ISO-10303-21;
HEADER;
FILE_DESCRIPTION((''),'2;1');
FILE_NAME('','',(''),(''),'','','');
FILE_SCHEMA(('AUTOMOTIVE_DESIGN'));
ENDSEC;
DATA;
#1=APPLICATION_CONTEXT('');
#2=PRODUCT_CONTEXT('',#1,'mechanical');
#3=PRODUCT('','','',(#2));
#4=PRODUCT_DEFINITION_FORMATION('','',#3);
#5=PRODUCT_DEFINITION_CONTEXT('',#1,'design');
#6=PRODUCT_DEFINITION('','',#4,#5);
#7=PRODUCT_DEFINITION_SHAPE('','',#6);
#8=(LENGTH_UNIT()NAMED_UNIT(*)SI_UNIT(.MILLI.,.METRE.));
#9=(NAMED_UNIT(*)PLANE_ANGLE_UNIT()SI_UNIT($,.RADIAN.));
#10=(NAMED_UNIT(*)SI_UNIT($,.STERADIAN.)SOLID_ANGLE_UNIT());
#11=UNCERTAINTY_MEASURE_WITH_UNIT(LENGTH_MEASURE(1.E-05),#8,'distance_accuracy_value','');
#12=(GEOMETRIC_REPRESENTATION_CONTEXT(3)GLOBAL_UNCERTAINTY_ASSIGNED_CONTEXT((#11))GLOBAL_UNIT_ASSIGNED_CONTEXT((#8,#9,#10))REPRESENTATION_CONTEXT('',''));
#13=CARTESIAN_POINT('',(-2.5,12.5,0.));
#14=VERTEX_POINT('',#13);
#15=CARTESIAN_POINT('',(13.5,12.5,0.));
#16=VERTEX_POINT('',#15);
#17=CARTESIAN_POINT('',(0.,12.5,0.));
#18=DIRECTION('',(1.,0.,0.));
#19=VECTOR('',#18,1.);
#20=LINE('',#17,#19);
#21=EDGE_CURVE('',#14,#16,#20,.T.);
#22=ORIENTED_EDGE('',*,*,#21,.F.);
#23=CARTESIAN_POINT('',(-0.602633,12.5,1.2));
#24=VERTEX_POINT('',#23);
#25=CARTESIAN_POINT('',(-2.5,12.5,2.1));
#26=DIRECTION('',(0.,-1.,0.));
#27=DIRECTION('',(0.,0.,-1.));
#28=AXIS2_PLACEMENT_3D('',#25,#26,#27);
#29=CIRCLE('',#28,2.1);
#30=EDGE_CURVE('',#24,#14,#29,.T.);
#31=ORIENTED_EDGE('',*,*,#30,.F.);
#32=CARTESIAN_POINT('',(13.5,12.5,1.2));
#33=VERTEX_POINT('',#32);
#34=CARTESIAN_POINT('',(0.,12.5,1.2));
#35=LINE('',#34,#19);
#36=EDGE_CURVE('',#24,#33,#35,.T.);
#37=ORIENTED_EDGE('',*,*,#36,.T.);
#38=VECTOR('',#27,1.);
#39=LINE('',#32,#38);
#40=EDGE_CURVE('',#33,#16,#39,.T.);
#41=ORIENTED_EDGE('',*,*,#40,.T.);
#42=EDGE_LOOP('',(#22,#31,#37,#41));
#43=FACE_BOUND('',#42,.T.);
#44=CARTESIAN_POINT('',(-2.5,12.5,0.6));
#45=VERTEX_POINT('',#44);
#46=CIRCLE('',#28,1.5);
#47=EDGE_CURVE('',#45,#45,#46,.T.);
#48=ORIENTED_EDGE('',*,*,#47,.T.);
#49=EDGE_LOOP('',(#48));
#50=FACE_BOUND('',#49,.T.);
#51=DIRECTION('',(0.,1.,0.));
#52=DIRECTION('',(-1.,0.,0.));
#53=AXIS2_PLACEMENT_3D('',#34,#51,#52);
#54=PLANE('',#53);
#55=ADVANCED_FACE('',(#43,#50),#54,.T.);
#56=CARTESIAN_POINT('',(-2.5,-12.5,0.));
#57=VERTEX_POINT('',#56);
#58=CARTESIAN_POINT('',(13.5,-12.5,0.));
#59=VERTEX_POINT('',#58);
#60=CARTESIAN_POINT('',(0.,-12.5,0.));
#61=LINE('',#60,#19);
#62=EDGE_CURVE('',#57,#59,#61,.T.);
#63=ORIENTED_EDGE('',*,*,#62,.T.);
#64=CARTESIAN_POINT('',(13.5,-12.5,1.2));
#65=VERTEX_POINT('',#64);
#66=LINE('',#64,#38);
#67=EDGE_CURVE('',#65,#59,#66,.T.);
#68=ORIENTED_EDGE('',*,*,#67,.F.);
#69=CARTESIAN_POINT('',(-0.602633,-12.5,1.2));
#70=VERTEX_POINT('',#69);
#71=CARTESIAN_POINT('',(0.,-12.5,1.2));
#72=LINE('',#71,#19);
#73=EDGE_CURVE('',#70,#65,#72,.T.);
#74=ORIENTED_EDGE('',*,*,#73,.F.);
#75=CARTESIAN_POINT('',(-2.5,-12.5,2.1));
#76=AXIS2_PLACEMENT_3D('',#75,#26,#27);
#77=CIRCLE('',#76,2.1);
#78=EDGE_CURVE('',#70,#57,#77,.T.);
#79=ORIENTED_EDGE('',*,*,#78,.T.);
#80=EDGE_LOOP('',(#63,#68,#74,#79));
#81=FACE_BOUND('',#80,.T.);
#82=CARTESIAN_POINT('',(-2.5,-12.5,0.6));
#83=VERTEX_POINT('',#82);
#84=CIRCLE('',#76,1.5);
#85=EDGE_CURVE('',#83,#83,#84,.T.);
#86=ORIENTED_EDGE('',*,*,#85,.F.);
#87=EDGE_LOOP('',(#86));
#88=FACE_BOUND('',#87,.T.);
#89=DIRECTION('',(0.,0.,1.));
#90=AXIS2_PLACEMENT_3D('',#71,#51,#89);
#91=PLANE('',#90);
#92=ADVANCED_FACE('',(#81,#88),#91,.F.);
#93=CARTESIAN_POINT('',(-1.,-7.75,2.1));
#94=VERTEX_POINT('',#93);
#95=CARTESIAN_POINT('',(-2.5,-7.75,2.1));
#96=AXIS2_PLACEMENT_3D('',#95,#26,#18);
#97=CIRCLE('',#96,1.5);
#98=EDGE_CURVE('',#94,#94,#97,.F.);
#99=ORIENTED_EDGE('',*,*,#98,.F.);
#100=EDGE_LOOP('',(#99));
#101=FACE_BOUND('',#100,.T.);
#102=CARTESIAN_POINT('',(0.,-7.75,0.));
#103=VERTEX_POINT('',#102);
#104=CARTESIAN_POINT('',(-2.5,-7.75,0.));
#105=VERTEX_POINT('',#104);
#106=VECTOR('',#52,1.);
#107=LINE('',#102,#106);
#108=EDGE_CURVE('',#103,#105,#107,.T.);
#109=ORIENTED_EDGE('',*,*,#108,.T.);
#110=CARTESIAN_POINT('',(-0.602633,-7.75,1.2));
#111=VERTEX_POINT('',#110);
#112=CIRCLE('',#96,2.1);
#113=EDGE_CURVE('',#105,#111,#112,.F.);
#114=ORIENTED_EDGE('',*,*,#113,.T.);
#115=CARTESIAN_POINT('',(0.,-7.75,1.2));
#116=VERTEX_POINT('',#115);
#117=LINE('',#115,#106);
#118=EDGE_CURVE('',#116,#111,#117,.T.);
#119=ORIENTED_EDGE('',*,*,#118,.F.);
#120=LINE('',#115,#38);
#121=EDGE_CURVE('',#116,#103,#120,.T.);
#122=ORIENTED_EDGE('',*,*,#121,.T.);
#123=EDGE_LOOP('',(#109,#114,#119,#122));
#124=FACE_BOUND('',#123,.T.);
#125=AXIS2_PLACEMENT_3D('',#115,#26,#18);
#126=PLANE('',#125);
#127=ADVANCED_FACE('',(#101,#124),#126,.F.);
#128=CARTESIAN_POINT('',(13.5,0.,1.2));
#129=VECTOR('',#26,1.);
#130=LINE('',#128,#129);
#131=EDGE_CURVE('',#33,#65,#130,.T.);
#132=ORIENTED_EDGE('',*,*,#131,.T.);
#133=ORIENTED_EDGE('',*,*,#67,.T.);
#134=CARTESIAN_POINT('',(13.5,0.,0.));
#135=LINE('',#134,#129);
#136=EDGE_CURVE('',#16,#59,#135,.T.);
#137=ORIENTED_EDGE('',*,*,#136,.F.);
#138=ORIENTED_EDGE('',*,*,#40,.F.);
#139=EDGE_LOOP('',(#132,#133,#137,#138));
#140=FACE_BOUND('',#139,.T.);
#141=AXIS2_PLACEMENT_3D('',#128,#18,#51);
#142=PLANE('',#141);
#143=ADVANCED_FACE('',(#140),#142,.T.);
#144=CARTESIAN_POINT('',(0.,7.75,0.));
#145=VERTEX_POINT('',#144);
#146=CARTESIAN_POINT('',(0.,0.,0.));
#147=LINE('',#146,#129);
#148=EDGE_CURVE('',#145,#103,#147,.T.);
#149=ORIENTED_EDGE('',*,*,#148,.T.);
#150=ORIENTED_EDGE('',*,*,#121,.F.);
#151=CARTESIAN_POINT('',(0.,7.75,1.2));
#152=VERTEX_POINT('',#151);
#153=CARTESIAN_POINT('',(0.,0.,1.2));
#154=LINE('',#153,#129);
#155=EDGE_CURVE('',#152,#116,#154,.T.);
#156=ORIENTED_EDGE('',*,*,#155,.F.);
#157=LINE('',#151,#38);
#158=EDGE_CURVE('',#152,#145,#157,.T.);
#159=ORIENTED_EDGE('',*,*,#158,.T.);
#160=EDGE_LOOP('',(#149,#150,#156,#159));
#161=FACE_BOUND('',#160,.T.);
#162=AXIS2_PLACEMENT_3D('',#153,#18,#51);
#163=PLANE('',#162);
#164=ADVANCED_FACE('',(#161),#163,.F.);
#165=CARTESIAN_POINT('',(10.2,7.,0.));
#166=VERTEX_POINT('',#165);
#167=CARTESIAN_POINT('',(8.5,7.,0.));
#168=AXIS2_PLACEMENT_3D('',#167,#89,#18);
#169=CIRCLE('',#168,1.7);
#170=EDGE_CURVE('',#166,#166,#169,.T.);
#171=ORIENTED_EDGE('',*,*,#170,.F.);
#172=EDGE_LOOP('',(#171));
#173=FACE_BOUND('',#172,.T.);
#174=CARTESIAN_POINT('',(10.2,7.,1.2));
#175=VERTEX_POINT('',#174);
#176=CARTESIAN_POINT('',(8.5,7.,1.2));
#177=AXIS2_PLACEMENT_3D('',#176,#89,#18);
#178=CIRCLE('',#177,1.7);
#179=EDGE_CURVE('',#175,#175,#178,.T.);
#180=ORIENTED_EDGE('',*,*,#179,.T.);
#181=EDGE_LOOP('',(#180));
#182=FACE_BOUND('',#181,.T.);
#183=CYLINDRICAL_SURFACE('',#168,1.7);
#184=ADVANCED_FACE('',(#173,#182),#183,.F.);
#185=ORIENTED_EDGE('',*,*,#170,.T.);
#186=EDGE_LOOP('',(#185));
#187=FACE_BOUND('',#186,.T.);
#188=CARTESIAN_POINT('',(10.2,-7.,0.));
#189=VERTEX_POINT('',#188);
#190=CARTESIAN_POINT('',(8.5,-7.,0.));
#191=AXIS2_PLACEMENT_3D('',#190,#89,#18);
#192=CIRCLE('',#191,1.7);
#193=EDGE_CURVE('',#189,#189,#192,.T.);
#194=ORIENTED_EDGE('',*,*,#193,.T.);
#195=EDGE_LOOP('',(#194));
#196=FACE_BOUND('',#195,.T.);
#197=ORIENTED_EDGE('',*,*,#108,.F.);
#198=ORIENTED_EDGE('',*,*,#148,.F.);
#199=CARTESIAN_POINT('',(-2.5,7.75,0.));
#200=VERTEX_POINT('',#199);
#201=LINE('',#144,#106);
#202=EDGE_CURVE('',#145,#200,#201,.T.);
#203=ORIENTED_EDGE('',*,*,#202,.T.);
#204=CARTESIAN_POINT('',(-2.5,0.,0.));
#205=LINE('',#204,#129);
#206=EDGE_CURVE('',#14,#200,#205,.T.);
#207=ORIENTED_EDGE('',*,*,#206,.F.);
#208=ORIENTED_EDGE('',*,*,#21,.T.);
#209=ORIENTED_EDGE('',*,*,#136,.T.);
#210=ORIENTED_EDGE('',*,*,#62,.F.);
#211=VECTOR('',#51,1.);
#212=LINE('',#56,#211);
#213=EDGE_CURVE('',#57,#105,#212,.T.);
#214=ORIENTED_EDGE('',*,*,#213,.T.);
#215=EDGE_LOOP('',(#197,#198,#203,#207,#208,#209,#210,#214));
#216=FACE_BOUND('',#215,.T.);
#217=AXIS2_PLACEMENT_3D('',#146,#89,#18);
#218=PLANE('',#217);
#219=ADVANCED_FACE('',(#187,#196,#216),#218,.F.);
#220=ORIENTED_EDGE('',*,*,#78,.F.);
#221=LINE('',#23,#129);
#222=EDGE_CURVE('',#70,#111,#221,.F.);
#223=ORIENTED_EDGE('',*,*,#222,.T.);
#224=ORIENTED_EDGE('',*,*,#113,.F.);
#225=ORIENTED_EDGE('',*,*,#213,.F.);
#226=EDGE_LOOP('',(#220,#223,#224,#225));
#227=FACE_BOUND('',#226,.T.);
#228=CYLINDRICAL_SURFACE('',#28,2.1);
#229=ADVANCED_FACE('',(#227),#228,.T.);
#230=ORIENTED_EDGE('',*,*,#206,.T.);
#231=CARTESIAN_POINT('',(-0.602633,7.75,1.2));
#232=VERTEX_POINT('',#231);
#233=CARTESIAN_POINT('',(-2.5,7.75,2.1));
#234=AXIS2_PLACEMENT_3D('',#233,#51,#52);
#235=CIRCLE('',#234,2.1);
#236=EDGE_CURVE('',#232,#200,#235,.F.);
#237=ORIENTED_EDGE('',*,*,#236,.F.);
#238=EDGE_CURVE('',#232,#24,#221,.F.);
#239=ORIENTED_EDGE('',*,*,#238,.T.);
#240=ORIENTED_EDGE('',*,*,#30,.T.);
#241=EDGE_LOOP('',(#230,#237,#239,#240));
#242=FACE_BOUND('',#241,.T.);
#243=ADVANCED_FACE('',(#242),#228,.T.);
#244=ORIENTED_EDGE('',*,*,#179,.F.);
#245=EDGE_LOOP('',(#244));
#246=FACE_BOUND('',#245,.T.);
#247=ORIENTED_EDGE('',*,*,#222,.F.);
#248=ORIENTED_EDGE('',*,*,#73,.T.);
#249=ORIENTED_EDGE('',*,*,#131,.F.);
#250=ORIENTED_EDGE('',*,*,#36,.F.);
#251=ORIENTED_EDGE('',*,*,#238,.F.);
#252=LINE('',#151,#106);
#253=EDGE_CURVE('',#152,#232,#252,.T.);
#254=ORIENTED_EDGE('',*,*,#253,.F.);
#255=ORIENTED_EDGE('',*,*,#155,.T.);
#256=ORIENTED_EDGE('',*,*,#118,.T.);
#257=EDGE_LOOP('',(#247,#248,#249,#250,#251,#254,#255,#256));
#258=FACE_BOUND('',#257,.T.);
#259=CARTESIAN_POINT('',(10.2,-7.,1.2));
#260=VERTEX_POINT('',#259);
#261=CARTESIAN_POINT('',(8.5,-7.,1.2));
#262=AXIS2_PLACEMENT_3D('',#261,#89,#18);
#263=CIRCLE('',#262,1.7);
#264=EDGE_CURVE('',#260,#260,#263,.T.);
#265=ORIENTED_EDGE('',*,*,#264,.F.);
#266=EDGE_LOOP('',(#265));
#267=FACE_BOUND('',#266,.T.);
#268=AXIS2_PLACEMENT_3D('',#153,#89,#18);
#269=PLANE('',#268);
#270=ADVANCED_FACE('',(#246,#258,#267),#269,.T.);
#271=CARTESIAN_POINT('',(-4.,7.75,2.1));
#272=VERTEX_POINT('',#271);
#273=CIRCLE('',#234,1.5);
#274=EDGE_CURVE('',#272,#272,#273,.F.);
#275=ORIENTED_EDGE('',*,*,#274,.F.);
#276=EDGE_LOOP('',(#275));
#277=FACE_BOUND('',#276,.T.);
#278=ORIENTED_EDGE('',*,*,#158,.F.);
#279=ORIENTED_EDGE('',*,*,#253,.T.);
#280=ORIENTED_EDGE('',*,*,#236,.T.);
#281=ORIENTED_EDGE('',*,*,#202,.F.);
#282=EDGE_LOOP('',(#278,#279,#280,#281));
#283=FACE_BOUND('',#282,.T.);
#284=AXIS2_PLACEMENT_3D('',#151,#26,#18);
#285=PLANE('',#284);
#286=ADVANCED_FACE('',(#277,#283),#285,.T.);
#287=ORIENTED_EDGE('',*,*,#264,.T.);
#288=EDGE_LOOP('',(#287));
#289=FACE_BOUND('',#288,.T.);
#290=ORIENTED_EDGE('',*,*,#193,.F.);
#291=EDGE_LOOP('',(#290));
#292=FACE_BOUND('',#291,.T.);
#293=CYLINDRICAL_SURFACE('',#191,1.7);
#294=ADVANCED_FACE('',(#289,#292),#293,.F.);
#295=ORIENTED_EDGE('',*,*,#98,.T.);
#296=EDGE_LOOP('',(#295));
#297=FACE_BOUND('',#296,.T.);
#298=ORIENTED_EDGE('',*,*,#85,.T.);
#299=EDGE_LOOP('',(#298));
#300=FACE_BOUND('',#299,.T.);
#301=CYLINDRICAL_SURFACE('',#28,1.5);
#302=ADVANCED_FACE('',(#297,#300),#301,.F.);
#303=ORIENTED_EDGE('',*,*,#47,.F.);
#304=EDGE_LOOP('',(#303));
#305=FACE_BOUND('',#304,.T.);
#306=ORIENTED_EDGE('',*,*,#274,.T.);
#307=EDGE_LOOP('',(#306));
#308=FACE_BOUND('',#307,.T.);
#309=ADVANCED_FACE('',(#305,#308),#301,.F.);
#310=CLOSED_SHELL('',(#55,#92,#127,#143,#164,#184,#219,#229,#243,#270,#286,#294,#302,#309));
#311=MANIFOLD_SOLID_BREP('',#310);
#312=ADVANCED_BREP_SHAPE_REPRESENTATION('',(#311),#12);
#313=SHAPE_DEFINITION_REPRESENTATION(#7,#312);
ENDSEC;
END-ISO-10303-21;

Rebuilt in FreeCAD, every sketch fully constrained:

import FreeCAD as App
import Part
import Sketcher

V = App.Vector
Q = App.Units.Quantity

doc = App.newDocument("Part")
params = doc.addObject("Spreadsheet::Sheet", "Params")
for row, (alias, value) in enumerate([
    ("sketch1_width", "16 mm"),
    ("sketch1_height", "25 mm"),
    ("sketch1_width2", "2.5 mm"),
    ("sketch1_height2", "15.5 mm"),
    ("pad1_length", "1.2 mm"),
    ("sketch2_diameter", "3.4 mm"),
    ("pocket1_length", "1.2 mm"),
    ("sketch3_diameter", "4.2 mm"),
    ("pad2_length", "25 mm"),
    ("sketch4_diameter", "3 mm"),
    ("pocket2_length", "25 mm"),
    ("sketch5_width", "5 mm"),
    ("sketch5_height", "15.5 mm"),
    ("pocket3_length", "15 mm"),
], start=1):
    params.set(f"A{row}", alias)
    params.set(f"B{row}", "=" + value)
    params.setAlias(f"B{row}", alias)

body = doc.addObject("PartDesign::Body", "Body")

sketch1 = body.newObject("Sketcher::SketchObject", "Sketch")
sketch1.AttachmentSupport = (doc.getObject("XY_Plane"), [""])
sketch1.MapMode = "FlatFace"
sketch1.addGeometry(Part.LineSegment(V(0, 7.8, 0), V(0, -7.8, 0)), False)
sketch1.addGeometry(Part.LineSegment(V(0, -7.8, 0), V(-2.5, -7.8, 0)), False)
sketch1.addGeometry(Part.LineSegment(V(-2.5, -7.8, 0), V(-2.5, -12.5, 0)), False)
sketch1.addGeometry(Part.LineSegment(V(-2.5, -12.5, 0), V(13.5, -12.5, 0)), False)
sketch1.addGeometry(Part.LineSegment(V(13.5, -12.5, 0), V(13.5, 12.5, 0)), False)
sketch1.addGeometry(Part.LineSegment(V(13.5, 12.5, 0), V(-2.5, 12.5, 0)), False)
sketch1.addGeometry(Part.LineSegment(V(-2.5, 12.5, 0), V(-2.5, 7.8, 0)), False)
sketch1.addGeometry(Part.LineSegment(V(-2.5, 7.8, 0), V(0, 7.8, 0)), False)
sketch1.addConstraint(Sketcher.Constraint("Coincident", 0, 2, 1, 1))
sketch1.addConstraint(Sketcher.Constraint("Coincident", 1, 2, 2, 1))
sketch1.addConstraint(Sketcher.Constraint("Coincident", 2, 2, 3, 1))
sketch1.addConstraint(Sketcher.Constraint("Coincident", 3, 2, 4, 1))
sketch1.addConstraint(Sketcher.Constraint("Coincident", 4, 2, 5, 1))
sketch1.addConstraint(Sketcher.Constraint("Coincident", 5, 2, 6, 1))
sketch1.addConstraint(Sketcher.Constraint("Coincident", 6, 2, 7, 1))
sketch1.addConstraint(Sketcher.Constraint("Coincident", 7, 2, 0, 1))
sketch1.addConstraint(Sketcher.Constraint("Vertical", 0))
sketch1.addConstraint(Sketcher.Constraint("Horizontal", 1))
sketch1.addConstraint(Sketcher.Constraint("Vertical", 2))
sketch1.addConstraint(Sketcher.Constraint("Horizontal", 3))
sketch1.addConstraint(Sketcher.Constraint("Vertical", 4))
sketch1.addConstraint(Sketcher.Constraint("Horizontal", 5))
sketch1.addConstraint(Sketcher.Constraint("Vertical", 6))
sketch1.addConstraint(Sketcher.Constraint("Horizontal", 7))
sketch1.addConstraint(Sketcher.Constraint("Symmetric", 0, 2, 7, 2, -1, 1))
sketch1.addConstraint(Sketcher.Constraint("Symmetric", 2, 2, 5, 2, -1))
sketch1.addConstraint(Sketcher.Constraint("DistanceX", 3, 1, 3, 2, Q("16 mm")))
sketch1.addConstraint(Sketcher.Constraint("DistanceY", 4, 1, 4, 2, Q("25 mm")))
sketch1.addConstraint(Sketcher.Constraint("DistanceX", 1, 2, 1, 1, Q("2.5 mm")))
sketch1.addConstraint(Sketcher.Constraint("DistanceY", 0, 2, 0, 1, Q("15.5 mm")))
sketch1.setExpression("Constraints[18]", "Params.sketch1_width")
sketch1.setExpression("Constraints[19]", "Params.sketch1_height")
sketch1.setExpression("Constraints[20]", "Params.sketch1_width2")
sketch1.setExpression("Constraints[21]", "Params.sketch1_height2")
pad1 = body.newObject("PartDesign::Pad", "Pad")
pad1.Profile = sketch1
pad1.setExpression("Length", "Params.pad1_length")

sketch2 = body.newObject("Sketcher::SketchObject", "Sketch001")
sketch2.AttachmentSupport = (doc.getObject("XY_Plane"), [""])
sketch2.MapMode = "FlatFace"
sketch2.AttachmentOffset = App.Placement(V(0, 0, 1.2), App.Rotation())
sketch2.addGeometry(Part.Circle(V(8.5, 7, 0), V(0, 0, 1), 1.7), False)
sketch2.addGeometry(Part.Circle(V(8.5, -7, 0), V(0, 0, 1), 1.7), False)
sketch2.addConstraint(Sketcher.Constraint("Equal", 0, 1))
sketch2.addConstraint(Sketcher.Constraint("Symmetric", 0, 3, 1, 3, -1))
sketch2.addConstraint(Sketcher.Constraint("Diameter", 0, Q("3.4 mm")))
sketch2.addConstraint(Sketcher.Constraint("DistanceY", -1, 1, 0, 3, Q("7 mm")))
sketch2.addConstraint(Sketcher.Constraint("DistanceX", -1, 1, 0, 3, Q("8.5 mm")))
sketch2.setExpression("Constraints[2]", "Params.sketch2_diameter")
pocket1 = body.newObject("PartDesign::Pocket", "Pocket")
pocket1.Profile = sketch2
pocket1.setExpression("Length", "Params.pocket1_length")

sketch3 = body.newObject("Sketcher::SketchObject", "Sketch002")
sketch3.AttachmentSupport = (doc.getObject("XZ_Plane"), [""])
sketch3.MapMode = "FlatFace"
sketch3.AttachmentOffset = App.Placement(V(0, 0, 12.5), App.Rotation())
sketch3.addGeometry(Part.Circle(V(-2.5, 2.1, 0), V(0, 0, 1), 2.1), False)
sketch3.addConstraint(Sketcher.Constraint("Diameter", 0, Q("4.2 mm")))
sketch3.addConstraint(Sketcher.Constraint("DistanceX", 0, 3, -1, 1, Q("2.5 mm")))
sketch3.addConstraint(Sketcher.Constraint("DistanceY", -1, 1, 0, 3, Q("2.1 mm")))
sketch3.setExpression("Constraints[0]", "Params.sketch3_diameter")
pad2 = body.newObject("PartDesign::Pad", "Pad001")
pad2.Profile = sketch3
pad2.setExpression("Length", "Params.pad2_length")
pad2.Reversed = True

sketch4 = body.newObject("Sketcher::SketchObject", "Sketch003")
sketch4.AttachmentSupport = (doc.getObject("XZ_Plane"), [""])
sketch4.MapMode = "FlatFace"
sketch4.AttachmentOffset = App.Placement(V(0, 0, 12.5), App.Rotation())
sketch4.addGeometry(Part.Circle(V(-2.5, 2.1, 0), V(0, 0, 1), 1.5), False)
sketch4.addConstraint(Sketcher.Constraint("Diameter", 0, Q("3 mm")))
sketch4.addConstraint(Sketcher.Constraint("DistanceX", 0, 3, -1, 1, Q("2.5 mm")))
sketch4.addConstraint(Sketcher.Constraint("DistanceY", -1, 1, 0, 3, Q("2.1 mm")))
sketch4.setExpression("Constraints[0]", "Params.sketch4_diameter")
pocket2 = body.newObject("PartDesign::Pocket", "Pocket001")
pocket2.Profile = sketch4
pocket2.setExpression("Length", "Params.pocket2_length")

sketch5 = body.newObject("Sketcher::SketchObject", "Sketch004")
sketch5.AttachmentSupport = (doc.getObject("XY_Plane"), [""])
sketch5.MapMode = "FlatFace"
sketch5.AttachmentOffset = App.Placement(V(0, 0, 1.2), App.Rotation())
sketch5.addGeometry(Part.LineSegment(V(-5, 8, 0), V(-5, -8, 0)), False)
sketch5.addGeometry(Part.LineSegment(V(-5, -8, 0), V(0, -8, 0)), False)
sketch5.addGeometry(Part.LineSegment(V(0, -8, 0), V(0, 8, 0)), False)
sketch5.addGeometry(Part.LineSegment(V(0, 8, 0), V(-5, 8, 0)), False)
sketch5.addConstraint(Sketcher.Constraint("Coincident", 0, 2, 1, 1))
sketch5.addConstraint(Sketcher.Constraint("Coincident", 1, 2, 2, 1))
sketch5.addConstraint(Sketcher.Constraint("Coincident", 2, 2, 3, 1))
sketch5.addConstraint(Sketcher.Constraint("Coincident", 3, 2, 0, 1))
sketch5.addConstraint(Sketcher.Constraint("Vertical", 0))
sketch5.addConstraint(Sketcher.Constraint("Horizontal", 1))
sketch5.addConstraint(Sketcher.Constraint("Vertical", 2))
sketch5.addConstraint(Sketcher.Constraint("Horizontal", 3))
sketch5.addConstraint(Sketcher.Constraint("Symmetric", 1, 2, 2, 2, -1, 1))
sketch5.addConstraint(Sketcher.Constraint("DistanceX", 1, 1, 1, 2, Q("5 mm")))
sketch5.addConstraint(Sketcher.Constraint("DistanceY", 0, 2, 0, 1, Q("15.5 mm")))
sketch5.setExpression("Constraints[9]", "Params.sketch5_width")
sketch5.setExpression("Constraints[10]", "Params.sketch5_height")
pocket3 = body.newObject("PartDesign::Pocket", "Pocket002")
pocket3.Profile = sketch5
pocket3.setExpression("Length", "Params.pocket3_length")
pocket3.Midplane = True

doc.recompute()
